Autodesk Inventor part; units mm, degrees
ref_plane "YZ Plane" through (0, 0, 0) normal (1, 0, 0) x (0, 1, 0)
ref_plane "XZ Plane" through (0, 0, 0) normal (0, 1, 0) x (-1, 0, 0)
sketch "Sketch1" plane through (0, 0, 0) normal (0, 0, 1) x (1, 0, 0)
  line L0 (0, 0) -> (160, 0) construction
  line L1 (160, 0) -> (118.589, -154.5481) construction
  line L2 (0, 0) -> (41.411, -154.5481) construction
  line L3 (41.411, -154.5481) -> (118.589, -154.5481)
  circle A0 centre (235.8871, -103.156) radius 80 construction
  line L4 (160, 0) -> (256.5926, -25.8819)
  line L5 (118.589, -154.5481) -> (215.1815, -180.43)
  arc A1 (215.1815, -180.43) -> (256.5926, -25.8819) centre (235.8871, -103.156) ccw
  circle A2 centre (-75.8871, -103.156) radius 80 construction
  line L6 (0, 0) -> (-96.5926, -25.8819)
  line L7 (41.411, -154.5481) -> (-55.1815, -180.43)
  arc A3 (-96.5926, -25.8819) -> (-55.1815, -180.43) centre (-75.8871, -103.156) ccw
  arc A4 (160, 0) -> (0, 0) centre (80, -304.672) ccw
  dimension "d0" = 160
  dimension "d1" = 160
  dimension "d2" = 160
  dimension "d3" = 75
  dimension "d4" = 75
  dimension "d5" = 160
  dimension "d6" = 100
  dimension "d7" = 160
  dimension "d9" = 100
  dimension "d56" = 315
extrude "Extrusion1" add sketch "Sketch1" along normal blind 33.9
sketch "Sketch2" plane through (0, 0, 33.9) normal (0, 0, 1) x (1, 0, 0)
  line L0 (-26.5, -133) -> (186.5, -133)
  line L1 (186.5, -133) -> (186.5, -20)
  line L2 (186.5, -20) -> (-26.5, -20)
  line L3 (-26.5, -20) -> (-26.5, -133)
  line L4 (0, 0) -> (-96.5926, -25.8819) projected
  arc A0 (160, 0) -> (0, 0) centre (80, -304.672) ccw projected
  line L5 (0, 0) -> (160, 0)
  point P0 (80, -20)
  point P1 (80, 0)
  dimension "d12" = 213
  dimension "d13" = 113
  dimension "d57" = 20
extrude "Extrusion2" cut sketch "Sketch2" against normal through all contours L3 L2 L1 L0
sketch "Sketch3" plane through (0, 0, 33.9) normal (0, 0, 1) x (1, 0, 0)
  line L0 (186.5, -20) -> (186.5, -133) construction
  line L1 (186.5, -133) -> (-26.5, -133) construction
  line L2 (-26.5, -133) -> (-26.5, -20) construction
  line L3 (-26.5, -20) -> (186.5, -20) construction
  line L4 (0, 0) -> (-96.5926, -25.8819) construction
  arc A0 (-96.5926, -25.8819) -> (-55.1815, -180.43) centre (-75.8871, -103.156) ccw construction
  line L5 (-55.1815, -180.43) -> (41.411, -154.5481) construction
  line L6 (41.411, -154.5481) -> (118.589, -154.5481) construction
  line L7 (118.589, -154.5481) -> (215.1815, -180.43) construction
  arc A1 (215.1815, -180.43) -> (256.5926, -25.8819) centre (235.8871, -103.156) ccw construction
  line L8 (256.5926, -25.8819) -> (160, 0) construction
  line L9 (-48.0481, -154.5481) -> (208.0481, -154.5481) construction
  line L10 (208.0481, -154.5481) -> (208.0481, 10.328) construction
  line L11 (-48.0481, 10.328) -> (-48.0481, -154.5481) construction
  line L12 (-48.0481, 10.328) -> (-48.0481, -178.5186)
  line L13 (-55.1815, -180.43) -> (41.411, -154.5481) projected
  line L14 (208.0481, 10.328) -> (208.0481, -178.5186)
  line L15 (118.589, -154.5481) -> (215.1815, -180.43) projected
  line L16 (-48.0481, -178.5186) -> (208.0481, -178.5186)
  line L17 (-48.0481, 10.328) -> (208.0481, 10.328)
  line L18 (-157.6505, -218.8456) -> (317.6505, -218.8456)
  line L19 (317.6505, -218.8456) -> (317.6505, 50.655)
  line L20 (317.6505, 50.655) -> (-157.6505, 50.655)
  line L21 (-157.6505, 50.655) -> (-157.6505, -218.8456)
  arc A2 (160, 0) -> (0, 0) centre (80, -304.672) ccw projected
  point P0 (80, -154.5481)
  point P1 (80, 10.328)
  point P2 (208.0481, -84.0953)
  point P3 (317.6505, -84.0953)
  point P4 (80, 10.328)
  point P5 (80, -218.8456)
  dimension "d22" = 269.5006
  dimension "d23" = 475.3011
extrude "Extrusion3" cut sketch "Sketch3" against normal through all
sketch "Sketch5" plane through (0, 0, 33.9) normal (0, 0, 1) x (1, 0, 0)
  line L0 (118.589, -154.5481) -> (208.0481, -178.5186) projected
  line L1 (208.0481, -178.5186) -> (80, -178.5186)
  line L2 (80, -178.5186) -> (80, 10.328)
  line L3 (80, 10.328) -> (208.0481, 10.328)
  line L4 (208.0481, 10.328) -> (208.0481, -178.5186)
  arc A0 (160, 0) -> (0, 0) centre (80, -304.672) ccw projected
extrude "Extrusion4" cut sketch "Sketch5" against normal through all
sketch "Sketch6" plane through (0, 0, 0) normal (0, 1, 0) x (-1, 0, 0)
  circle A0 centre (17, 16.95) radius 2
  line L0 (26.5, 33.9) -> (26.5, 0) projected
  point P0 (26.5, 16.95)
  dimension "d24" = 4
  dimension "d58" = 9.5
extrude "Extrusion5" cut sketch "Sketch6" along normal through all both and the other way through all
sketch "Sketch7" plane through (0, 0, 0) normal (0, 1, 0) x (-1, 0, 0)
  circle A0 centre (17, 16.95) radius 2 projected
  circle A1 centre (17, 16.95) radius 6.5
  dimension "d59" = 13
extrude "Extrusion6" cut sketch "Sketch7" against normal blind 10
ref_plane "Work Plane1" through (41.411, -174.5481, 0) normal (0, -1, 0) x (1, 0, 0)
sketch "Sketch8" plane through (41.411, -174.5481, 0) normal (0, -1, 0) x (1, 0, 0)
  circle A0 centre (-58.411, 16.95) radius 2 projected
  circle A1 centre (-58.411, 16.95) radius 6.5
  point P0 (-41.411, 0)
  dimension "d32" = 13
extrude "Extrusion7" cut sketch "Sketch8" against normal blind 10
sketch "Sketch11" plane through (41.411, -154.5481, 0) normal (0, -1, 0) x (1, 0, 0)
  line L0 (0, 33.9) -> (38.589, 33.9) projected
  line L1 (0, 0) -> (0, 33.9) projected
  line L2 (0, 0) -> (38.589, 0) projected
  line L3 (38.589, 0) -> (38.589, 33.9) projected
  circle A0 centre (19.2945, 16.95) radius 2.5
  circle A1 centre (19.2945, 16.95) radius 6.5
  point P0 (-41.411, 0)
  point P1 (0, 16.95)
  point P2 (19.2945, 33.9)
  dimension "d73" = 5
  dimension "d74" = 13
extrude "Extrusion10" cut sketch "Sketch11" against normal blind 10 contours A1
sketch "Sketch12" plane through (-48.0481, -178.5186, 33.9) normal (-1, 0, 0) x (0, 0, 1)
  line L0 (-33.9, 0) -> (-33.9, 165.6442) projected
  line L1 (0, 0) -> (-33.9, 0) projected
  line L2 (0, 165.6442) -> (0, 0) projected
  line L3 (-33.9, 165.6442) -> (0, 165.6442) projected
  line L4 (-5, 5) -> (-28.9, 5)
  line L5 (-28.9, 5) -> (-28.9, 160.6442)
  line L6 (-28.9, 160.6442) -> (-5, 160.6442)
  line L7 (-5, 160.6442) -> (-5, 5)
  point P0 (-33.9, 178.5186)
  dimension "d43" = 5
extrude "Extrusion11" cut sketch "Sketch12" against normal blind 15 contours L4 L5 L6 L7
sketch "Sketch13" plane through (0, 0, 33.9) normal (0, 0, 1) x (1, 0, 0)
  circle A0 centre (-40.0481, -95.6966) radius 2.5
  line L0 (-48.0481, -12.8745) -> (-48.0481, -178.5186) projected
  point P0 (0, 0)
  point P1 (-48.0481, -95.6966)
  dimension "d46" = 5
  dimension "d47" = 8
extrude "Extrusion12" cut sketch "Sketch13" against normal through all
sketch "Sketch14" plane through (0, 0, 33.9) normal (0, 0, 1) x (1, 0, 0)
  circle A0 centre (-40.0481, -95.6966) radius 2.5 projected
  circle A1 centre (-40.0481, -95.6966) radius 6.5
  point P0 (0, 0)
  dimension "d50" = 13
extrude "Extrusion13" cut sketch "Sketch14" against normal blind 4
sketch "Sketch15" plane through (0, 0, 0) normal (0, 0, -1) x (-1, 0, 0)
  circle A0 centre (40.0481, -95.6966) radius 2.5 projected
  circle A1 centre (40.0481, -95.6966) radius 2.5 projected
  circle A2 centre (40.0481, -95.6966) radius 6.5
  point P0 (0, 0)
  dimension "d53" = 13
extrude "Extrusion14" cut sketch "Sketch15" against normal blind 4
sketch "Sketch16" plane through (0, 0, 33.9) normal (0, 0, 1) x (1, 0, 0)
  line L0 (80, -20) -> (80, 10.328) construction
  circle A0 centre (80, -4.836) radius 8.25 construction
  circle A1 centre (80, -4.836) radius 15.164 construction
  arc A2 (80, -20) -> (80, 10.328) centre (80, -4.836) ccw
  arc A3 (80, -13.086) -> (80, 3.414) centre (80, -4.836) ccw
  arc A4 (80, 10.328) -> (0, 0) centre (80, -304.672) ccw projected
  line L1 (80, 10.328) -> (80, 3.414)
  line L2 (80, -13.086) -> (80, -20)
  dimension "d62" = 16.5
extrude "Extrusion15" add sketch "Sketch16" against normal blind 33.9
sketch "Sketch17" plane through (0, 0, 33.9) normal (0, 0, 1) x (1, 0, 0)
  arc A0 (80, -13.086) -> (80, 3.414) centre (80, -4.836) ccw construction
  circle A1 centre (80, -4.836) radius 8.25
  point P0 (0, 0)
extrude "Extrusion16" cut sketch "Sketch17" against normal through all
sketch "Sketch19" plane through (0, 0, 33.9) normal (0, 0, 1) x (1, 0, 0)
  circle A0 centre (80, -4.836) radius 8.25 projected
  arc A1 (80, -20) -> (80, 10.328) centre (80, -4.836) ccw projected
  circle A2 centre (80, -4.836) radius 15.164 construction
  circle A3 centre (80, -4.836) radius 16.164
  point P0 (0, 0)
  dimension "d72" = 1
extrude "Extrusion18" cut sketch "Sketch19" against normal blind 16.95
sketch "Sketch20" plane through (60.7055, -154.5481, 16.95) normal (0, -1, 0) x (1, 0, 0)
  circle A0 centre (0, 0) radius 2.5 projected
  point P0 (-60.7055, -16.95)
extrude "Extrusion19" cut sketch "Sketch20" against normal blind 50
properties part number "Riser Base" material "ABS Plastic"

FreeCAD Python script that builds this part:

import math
import FreeCAD as App
import Part
import Sketcher

V = App.Vector
Q = App.Units.Quantity


def add_polygon(sketch, points):
    """Adds a closed chain of lines whose ends are joined by coincident constraints."""
    first, n = sketch.GeometryCount, len(points)
    for a, b in zip(points, points[1:] + points[:1]):
        sketch.addGeometry(Part.LineSegment(App.Vector(*a, 0), App.Vector(*b, 0)), False)
    for i in range(n):
        sketch.addConstraint(Sketcher.Constraint("Coincident", first + i, 2, first + (i + 1) % n, 1))

doc = App.newDocument("Part")
body = doc.addObject("PartDesign::Body", "Body")

# Sketch on XY plane
sketch1 = body.newObject("Sketcher::SketchObject", "Sketch")
sketch1.AttachmentSupport = (doc.getObject("XY_Plane"), [""])
sketch1.MapMode = "FlatFace"
sketch1.addGeometry([
    Part.LineSegment(V(-55, -180, 0), V(41, -155, 0)),  # 0
    Part.LineSegment(V(41, -155, 0), V(119, -155, 0)),  # 1
    Part.LineSegment(V(119, -155, 0), V(215, -180, 0)),  # 2
    Part.ArcOfCircle(Part.Circle(V(236, -103, 0), V(0, 0, 1), 80), math.radians(-105), math.radians(75)),  # 3
    Part.LineSegment(V(257, -26, 0), V(160, 0, 0)),  # 4
    Part.ArcOfCircle(Part.Circle(V(80, -305, 0), V(0, 0, 1), 315), math.radians(75), math.radians(105)),  # 5
    Part.LineSegment(V(0, 0, 0), V(-97, -26, 0)),  # 6
    Part.ArcOfCircle(Part.Circle(V(-76, -103, 0), V(0, 0, 1), 80), math.radians(105), math.radians(285)),  # 7
], False)
sketch1.addConstraint([
    Sketcher.Constraint("Coincident", 0, 2, 1, 1),
    Sketcher.Constraint("Coincident", 1, 2, 2, 1),
    Sketcher.Constraint("Tangent", 2, 2, 3, 1),
    Sketcher.Constraint("Tangent", 3, 2, 4, 1),
    Sketcher.Constraint("Coincident", 4, 2, 5, 1),
    Sketcher.Constraint("Coincident", 5, 2, 6, 1),
    Sketcher.Constraint("Tangent", 6, 2, 7, 1),
    Sketcher.Constraint("Tangent", 7, 2, 0, 1),
    Sketcher.Constraint("Horizontal", 1),
    Sketcher.Constraint("Coincident", 5, 2, -1, 1),
    Sketcher.Constraint("Equal", 3, 7),
    Sketcher.Constraint("PointOnObject", 4, 2, -1),
    Sketcher.Constraint("Parallel", 2, 4),
    Sketcher.Constraint("Parallel", 0, 6),
    Sketcher.Constraint("Horizontal", 3, 3, 7, 3),
    Sketcher.Constraint("Horizontal", 3, 2, 6, 2),
    Sketcher.Constraint("Equal", 2, 4),
    Sketcher.Constraint("Radius", 3, 80.0),
    Sketcher.Constraint("Radius", 5, 315.0),
    Sketcher.Constraint("Distance", 0, 100.0),
    Sketcher.Constraint("DistanceX", -1, 1, 4, 2, 160.0),
    Sketcher.Constraint("Angle", 0, Q("15 deg")),
])
pad1 = body.newObject("PartDesign::Pad", "Pad")
pad1.Profile = sketch1
pad1.Length = 33.9

# Sketch on XY plane
sketch2 = body.newObject("Sketcher::SketchObject", "Sketch001")
sketch2.AttachmentSupport = (doc.getObject("XY_Plane"), [""])
sketch2.MapMode = "FlatFace"
sketch2.AttachmentOffset = App.Placement(V(0, 0, 33.9), App.Rotation())
add_polygon(sketch2, [(-26, -20), (-26, -133), (186, -133), (186, -20)])  # lines 0-3
sketch2.addConstraint([
    Sketcher.Constraint("Vertical", 0),
    Sketcher.Constraint("Horizontal", 1),
    Sketcher.Constraint("Vertical", 2),
    Sketcher.Constraint("Horizontal", 3),
    Sketcher.Constraint("DistanceX", 1, 1, 1, 2, 213.0),
    Sketcher.Constraint("DistanceY", 0, 2, 0, 1, 113.0),
    Sketcher.Constraint("DistanceY", 2, 2, -1, 1, 20.0),
    Sketcher.Constraint("DistanceX", 0, 2, -1, 1, 26.5),
])
pocket1 = body.newObject("PartDesign::Pocket", "Pocket")
pocket1.Profile = sketch2
pocket1.Type = "ThroughAll"

# Sketch on XY plane
sketch3 = body.newObject("Sketcher::SketchObject", "Sketch002")
sketch3.AttachmentSupport = (doc.getObject("XY_Plane"), [""])
sketch3.MapMode = "FlatFace"
sketch3.AttachmentOffset = App.Placement(V(0, 0, 33.9), App.Rotation())
add_polygon(sketch3, [(-158, 51), (-158, -219), (318, -219), (318, 51)])  # lines 0-3
add_polygon(sketch3, [(-48, -179), (-48, 10), (208, 10), (208, -179)])  # lines 4-7
sketch3.addConstraint([
    Sketcher.Constraint("Vertical", 0),
    Sketcher.Constraint("Horizontal", 1),
    Sketcher.Constraint("Vertical", 2),
    Sketcher.Constraint("Horizontal", 3),
    Sketcher.Constraint("Vertical", 4),
    Sketcher.Constraint("Horizontal", 5),
    Sketcher.Constraint("Vertical", 6),
    Sketcher.Constraint("Horizontal", 7),
    Sketcher.Constraint("DistanceX", 1, 1, 1, 2, 475.301),
    Sketcher.Constraint("DistanceY", 0, 2, 0, 1, 269.5006),
    Sketcher.Constraint("DistanceX", 5, 1, 5, 2, 256.0962),
    Sketcher.Constraint("DistanceY", 4, 1, 4, 2, 188.8466),
    Sketcher.Constraint("DistanceY", -1, 1, 2, 2, 50.655),
    Sketcher.Constraint("DistanceX", 4, 2, -1, 1, 48.048),
    Sketcher.Constraint("DistanceY", -1, 1, 4, 2, 10.328),
    Sketcher.Constraint("DistanceX", 0, 2, -1, 1, 157.6505),
])
pocket2 = body.newObject("PartDesign::Pocket", "Pocket001")
pocket2.Profile = sketch3
pocket2.Type = "ThroughAll"

# Sketch on XY plane
sketch4 = body.newObject("Sketcher::SketchObject", "Sketch003")
sketch4.AttachmentSupport = (doc.getObject("XY_Plane"), [""])
sketch4.MapMode = "FlatFace"
sketch4.AttachmentOffset = App.Placement(V(0, 0, 33.9), App.Rotation())
add_polygon(sketch4, [(80, -179), (208, -179), (208, 10), (80, 10)])  # lines 0-3
sketch4.addConstraint([
    Sketcher.Constraint("Horizontal", 0),
    Sketcher.Constraint("Vertical", 1),
    Sketcher.Constraint("Horizontal", 2),
    Sketcher.Constraint("Vertical", 3),
    Sketcher.Constraint("DistanceX", -1, 1, 2, 2, 80.0),
    Sketcher.Constraint("DistanceX", 0, 1, 0, 2, 128.048),
    Sketcher.Constraint("DistanceY", 1, 1, 1, 2, 188.8466),
    Sketcher.Constraint("DistanceY", -1, 1, 1, 2, 10.328),
])
pocket3 = body.newObject("PartDesign::Pocket", "Pocket002")
pocket3.Profile = sketch4
pocket3.Type = "ThroughAll"

# Sketch on XZ plane
sketch5 = body.newObject("Sketcher::SketchObject", "Sketch004")
sketch5.AttachmentSupport = (doc.getObject("XZ_Plane"), [""])
sketch5.MapMode = "FlatFace"
sketch5.addGeometry(Part.Circle(V(-17, 16.9, 0), V(0, 0, 1), 2), False)
sketch5.addConstraint([
    Sketcher.Constraint("Diameter", 0, 4.0),
    Sketcher.Constraint("DistanceX", 0, 3, -1, 1, 17.0),
    Sketcher.Constraint("DistanceY", -1, 1, 0, 3, 16.95),
])
pocket4 = body.newObject("PartDesign::Pocket", "Pocket003")
pocket4.Profile = sketch5
pocket4.Type = "ThroughAll"
pocket4.Midplane = True

# Sketch on XZ plane
sketch6 = body.newObject("Sketcher::SketchObject", "Sketch005")
sketch6.AttachmentSupport = (doc.getObject("XZ_Plane"), [""])
sketch6.MapMode = "FlatFace"
sketch6.addGeometry([
    Part.Circle(V(-17, 16.9, 0), V(0, 0, 1), 6.5),
    Part.Circle(V(-17, 16.9, 0), V(0, 0, 1), 2),
], False)
sketch6.addConstraint([
    Sketcher.Constraint("Coincident", 1, 3, 0, 3),
    Sketcher.Constraint("Diameter", 0, 13.0),
    Sketcher.Constraint("Diameter", 1, 4.0),
    Sketcher.Constraint("DistanceX", 0, 3, -1, 1, 17.0),
    Sketcher.Constraint("DistanceY", -1, 1, 0, 3, 16.95),
])
pocket5 = body.newObject("PartDesign::Pocket", "Pocket004")
pocket5.Profile = sketch6
pocket5.Length = 10
pocket5.Reversed = True

# Sketch on XZ plane
sketch7 = body.newObject("Sketcher::SketchObject", "Sketch006")
sketch7.AttachmentSupport = (doc.getObject("XZ_Plane"), [""])
sketch7.MapMode = "FlatFace"
sketch7.AttachmentOffset = App.Placement(V(0, 0, 174.5481), App.Rotation())
sketch7.addGeometry([
    Part.Circle(V(-17, 16.9, 0), V(0, 0, 1), 6.5),
    Part.Circle(V(-17, 16.9, 0), V(0, 0, 1), 2),
], False)
sketch7.addConstraint([
    Sketcher.Constraint("Coincident", 1, 3, 0, 3),
    Sketcher.Constraint("Diameter", 0, 13.0),
    Sketcher.Constraint("Diameter", 1, 4.0),
    Sketcher.Constraint("DistanceX", 0, 3, -1, 1, 17.0),
    Sketcher.Constraint("DistanceY", -1, 1, 0, 3, 16.95),
])
pocket6 = body.newObject("PartDesign::Pocket", "Pocket005")
pocket6.Profile = sketch7
pocket6.Length = 10

# Sketch on XZ plane
sketch8 = body.newObject("Sketcher::SketchObject", "Sketch007")
sketch8.AttachmentSupport = (doc.getObject("XZ_Plane"), [""])
sketch8.MapMode = "FlatFace"
sketch8.AttachmentOffset = App.Placement(V(0, 0, 154.5481), App.Rotation())
sketch8.addGeometry([
    Part.Circle(V(60.7, 16.9, 0), V(0, 0, 1), 6.5),
    Part.Circle(V(60.7, 16.9, 0), V(0, 0, 1), 2.5),
], False)
sketch8.addConstraint([
    Sketcher.Constraint("Coincident", 1, 3, 0, 3),
    Sketcher.Constraint("Diameter", 0, 13.0),
    Sketcher.Constraint("Diameter", 1, 5.0),
    Sketcher.Constraint("DistanceY", -1, 1, 0, 3, 16.95),
    Sketcher.Constraint("DistanceX", -1, 1, 0, 3, 60.7055),
])
pocket7 = body.newObject("PartDesign::Pocket", "Pocket006")
pocket7.Profile = sketch8
pocket7.Length = 10

# Sketch on YZ plane
sketch9 = body.newObject("Sketcher::SketchObject", "Sketch008")
sketch9.AttachmentSupport = (doc.getObject("YZ_Plane"), [""])
sketch9.MapMode = "FlatFace"
sketch9.AttachmentOffset = App.Placement(V(0, 0, -48.0481), App.Rotation())
add_polygon(sketch9, [(-174, 5), (-174, 29), (-18, 29), (-18, 5)])  # lines 0-3
sketch9.addConstraint([
    Sketcher.Constraint("Vertical", 0),
    Sketcher.Constraint("Horizontal", 1),
    Sketcher.Constraint("Vertical", 2),
    Sketcher.Constraint("Horizontal", 3),
    Sketcher.Constraint("DistanceY", -1, 1, 2, 2, 5.0),
    Sketcher.Constraint("DistanceY", 0, 1, 0, 2, 23.9),
    Sketcher.Constraint("DistanceX", 1, 1, 1, 2, 155.6442),
    Sketcher.Constraint("DistanceX", 0, 2, -1, 1, 173.5186),
])
pocket8 = body.newObject("PartDesign::Pocket", "Pocket007")
pocket8.Profile = sketch9
pocket8.Length = 15
pocket8.Reversed = True

# Sketch on XY plane
sketch10 = body.newObject("Sketcher::SketchObject", "Sketch009")
sketch10.AttachmentSupport = (doc.getObject("XY_Plane"), [""])
sketch10.MapMode = "FlatFace"
sketch10.AttachmentOffset = App.Placement(V(0, 0, 33.9), App.Rotation())
sketch10.addGeometry(Part.Circle(V(-40, -95.7, 0), V(0, 0, 1), 2.5), False)
sketch10.addConstraint([
    Sketcher.Constraint("Diameter", 0, 5.0),
    Sketcher.Constraint("DistanceX", 0, 3, -1, 1, 40.048),
    Sketcher.Constraint("DistanceY", 0, 3, -1, 1, 95.6966),
])
pocket9 = body.newObject("PartDesign::Pocket", "Pocket008")
pocket9.Profile = sketch10
pocket9.Type = "ThroughAll"

# Sketch on XY plane
sketch11 = body.newObject("Sketcher::SketchObject", "Sketch010")
sketch11.AttachmentSupport = (doc.getObject("XY_Plane"), [""])
sketch11.MapMode = "FlatFace"
sketch11.AttachmentOffset = App.Placement(V(0, 0, 33.9), App.Rotation())
sketch11.addGeometry([
    Part.Circle(V(-40, -95.7, 0), V(0, 0, 1), 6.5),
    Part.Circle(V(-40, -95.7, 0), V(0, 0, 1), 2.5),
], False)
sketch11.addConstraint([
    Sketcher.Constraint("Coincident", 1, 3, 0, 3),
    Sketcher.Constraint("Diameter", 0, 13.0),
    Sketcher.Constraint("Diameter", 1, 5.0),
    Sketcher.Constraint("DistanceX", 0, 3, -1, 1, 40.048),
    Sketcher.Constraint("DistanceY", 0, 3, -1, 1, 95.6966),
])
pocket10 = body.newObject("PartDesign::Pocket", "Pocket009")
pocket10.Profile = sketch11
pocket10.Length = 4

# Sketch on XY plane
sketch12 = body.newObject("Sketcher::SketchObject", "Sketch011")
sketch12.AttachmentSupport = (doc.getObject("XY_Plane"), [""])
sketch12.MapMode = "FlatFace"
sketch12.addGeometry([
    Part.Circle(V(-40, -95.7, 0), V(0, 0, 1), 6.5),
    Part.Circle(V(-40, -95.7, 0), V(0, 0, 1), 2.5),
], False)
sketch12.addConstraint([
    Sketcher.Constraint("Coincident", 1, 3, 0, 3),
    Sketcher.Constraint("Diameter", 0, 13.0),
    Sketcher.Constraint("Diameter", 1, 5.0),
    Sketcher.Constraint("DistanceX", 0, 3, -1, 1, 40.048),
    Sketcher.Constraint("DistanceY", 0, 3, -1, 1, 95.6966),
])
pocket11 = body.newObject("PartDesign::Pocket", "Pocket010")
pocket11.Profile = sketch12
pocket11.Length = 4
pocket11.Reversed = True

# Sketch on XY plane
sketch13 = body.newObject("Sketcher::SketchObject", "Sketch012")
sketch13.AttachmentSupport = (doc.getObject("XY_Plane"), [""])
sketch13.MapMode = "FlatFace"
sketch13.AttachmentOffset = App.Placement(V(0, 0, 33.9), App.Rotation())
sketch13.addGeometry([
    Part.LineSegment(V(80, -13, 0), V(80, -20, 0)),
    Part.ArcOfCircle(Part.Circle(V(80, -5, 0), V(0, 0, 1), 15), math.radians(-90), math.radians(90)),
    Part.LineSegment(V(80, 10, 0), V(80, 3, 0)),
    Part.ArcOfCircle(Part.Circle(V(80, -5, 0), V(0, 0, 1), 8), math.radians(-90), math.radians(90)),
], False)
sketch13.addConstraint([
    Sketcher.Constraint("Coincident", 0, 2, 1, 1),
    Sketcher.Constraint("Coincident", 1, 2, 2, 1),
    Sketcher.Constraint("Coincident", 2, 2, 3, 2),
    Sketcher.Constraint("Coincident", 3, 1, 0, 1),
    Sketcher.Constraint("Vertical", 0),
    Sketcher.Constraint("Vertical", 2),
    Sketcher.Constraint("Coincident", 3, 3, 1, 3),
    Sketcher.Constraint("Vertical", 3, 3, 0, 2),
    Sketcher.Constraint("Vertical", 0, 2, 1, 2),
    Sketcher.Constraint("Radius", 3, 8.25),
    Sketcher.Constraint("DistanceX", -1, 1, 1, 3, 80.0),
    Sketcher.Constraint("DistanceY", 0, 2, -1, 1, 20.0),
    Sketcher.Constraint("Radius", 1, 15.164),
])
pad2 = body.newObject("PartDesign::Pad", "Pad001")
pad2.Profile = sketch13
pad2.Length = 33.9
pad2.Reversed = True

# Sketch on XY plane
sketch14 = body.newObject("Sketcher::SketchObject", "Sketch013")
sketch14.AttachmentSupport = (doc.getObject("XY_Plane"), [""])
sketch14.MapMode = "FlatFace"
sketch14.AttachmentOffset = App.Placement(V(0, 0, 33.9), App.Rotation())
sketch14.addGeometry(Part.Circle(V(80, -5, 0), V(0, 0, 1), 8), False)
sketch14.addConstraint([
    Sketcher.Constraint("Diameter", 0, 16.5),
    Sketcher.Constraint("DistanceX", -1, 1, 0, 3, 80.0),
    Sketcher.Constraint("DistanceY", 0, 3, -1, 1, 4.836),
])
pocket12 = body.newObject("PartDesign::Pocket", "Pocket011")
pocket12.Profile = sketch14
pocket12.Type = "ThroughAll"

# Sketch on XY plane
sketch15 = body.newObject("Sketcher::SketchObject", "Sketch014")
sketch15.AttachmentSupport = (doc.getObject("XY_Plane"), [""])
sketch15.MapMode = "FlatFace"
sketch15.AttachmentOffset = App.Placement(V(0, 0, 33.9), App.Rotation())
sketch15.addGeometry([
    Part.Circle(V(80, -5, 0), V(0, 0, 1), 16),
    Part.Circle(V(80, -5, 0), V(0, 0, 1), 8),
], False)
sketch15.addConstraint([
    Sketcher.Constraint("Coincident", 1, 3, 0, 3),
    Sketcher.Constraint("Diameter", 1, 16.5),
    Sketcher.Constraint("Diameter", 0, 32.328),
    Sketcher.Constraint("DistanceX", -1, 1, 0, 3, 80.0),
    Sketcher.Constraint("DistanceY", 0, 3, -1, 1, 4.836),
])
pocket13 = body.newObject("PartDesign::Pocket", "Pocket012")
pocket13.Profile = sketch15
pocket13.Length = 16.95

# Sketch on XZ plane
sketch16 = body.newObject("Sketcher::SketchObject", "Sketch015")
sketch16.AttachmentSupport = (doc.getObject("XZ_Plane"), [""])
sketch16.MapMode = "FlatFace"
sketch16.AttachmentOffset = App.Placement(V(0, 0, 154.5481), App.Rotation())
sketch16.addGeometry(Part.Circle(V(60.7, 16.9, 0), V(0, 0, 1), 2.5), False)
sketch16.addConstraint([
    Sketcher.Constraint("Diameter", 0, 5.0),
    Sketcher.Constraint("DistanceY", -1, 1, 0, 3, 16.95),
    Sketcher.Constraint("DistanceX", -1, 1, 0, 3, 60.7055),
])
pocket14 = body.newObject("PartDesign::Pocket", "Pocket013")
pocket14.Profile = sketch16
pocket14.Length = 50

doc.recompute()
